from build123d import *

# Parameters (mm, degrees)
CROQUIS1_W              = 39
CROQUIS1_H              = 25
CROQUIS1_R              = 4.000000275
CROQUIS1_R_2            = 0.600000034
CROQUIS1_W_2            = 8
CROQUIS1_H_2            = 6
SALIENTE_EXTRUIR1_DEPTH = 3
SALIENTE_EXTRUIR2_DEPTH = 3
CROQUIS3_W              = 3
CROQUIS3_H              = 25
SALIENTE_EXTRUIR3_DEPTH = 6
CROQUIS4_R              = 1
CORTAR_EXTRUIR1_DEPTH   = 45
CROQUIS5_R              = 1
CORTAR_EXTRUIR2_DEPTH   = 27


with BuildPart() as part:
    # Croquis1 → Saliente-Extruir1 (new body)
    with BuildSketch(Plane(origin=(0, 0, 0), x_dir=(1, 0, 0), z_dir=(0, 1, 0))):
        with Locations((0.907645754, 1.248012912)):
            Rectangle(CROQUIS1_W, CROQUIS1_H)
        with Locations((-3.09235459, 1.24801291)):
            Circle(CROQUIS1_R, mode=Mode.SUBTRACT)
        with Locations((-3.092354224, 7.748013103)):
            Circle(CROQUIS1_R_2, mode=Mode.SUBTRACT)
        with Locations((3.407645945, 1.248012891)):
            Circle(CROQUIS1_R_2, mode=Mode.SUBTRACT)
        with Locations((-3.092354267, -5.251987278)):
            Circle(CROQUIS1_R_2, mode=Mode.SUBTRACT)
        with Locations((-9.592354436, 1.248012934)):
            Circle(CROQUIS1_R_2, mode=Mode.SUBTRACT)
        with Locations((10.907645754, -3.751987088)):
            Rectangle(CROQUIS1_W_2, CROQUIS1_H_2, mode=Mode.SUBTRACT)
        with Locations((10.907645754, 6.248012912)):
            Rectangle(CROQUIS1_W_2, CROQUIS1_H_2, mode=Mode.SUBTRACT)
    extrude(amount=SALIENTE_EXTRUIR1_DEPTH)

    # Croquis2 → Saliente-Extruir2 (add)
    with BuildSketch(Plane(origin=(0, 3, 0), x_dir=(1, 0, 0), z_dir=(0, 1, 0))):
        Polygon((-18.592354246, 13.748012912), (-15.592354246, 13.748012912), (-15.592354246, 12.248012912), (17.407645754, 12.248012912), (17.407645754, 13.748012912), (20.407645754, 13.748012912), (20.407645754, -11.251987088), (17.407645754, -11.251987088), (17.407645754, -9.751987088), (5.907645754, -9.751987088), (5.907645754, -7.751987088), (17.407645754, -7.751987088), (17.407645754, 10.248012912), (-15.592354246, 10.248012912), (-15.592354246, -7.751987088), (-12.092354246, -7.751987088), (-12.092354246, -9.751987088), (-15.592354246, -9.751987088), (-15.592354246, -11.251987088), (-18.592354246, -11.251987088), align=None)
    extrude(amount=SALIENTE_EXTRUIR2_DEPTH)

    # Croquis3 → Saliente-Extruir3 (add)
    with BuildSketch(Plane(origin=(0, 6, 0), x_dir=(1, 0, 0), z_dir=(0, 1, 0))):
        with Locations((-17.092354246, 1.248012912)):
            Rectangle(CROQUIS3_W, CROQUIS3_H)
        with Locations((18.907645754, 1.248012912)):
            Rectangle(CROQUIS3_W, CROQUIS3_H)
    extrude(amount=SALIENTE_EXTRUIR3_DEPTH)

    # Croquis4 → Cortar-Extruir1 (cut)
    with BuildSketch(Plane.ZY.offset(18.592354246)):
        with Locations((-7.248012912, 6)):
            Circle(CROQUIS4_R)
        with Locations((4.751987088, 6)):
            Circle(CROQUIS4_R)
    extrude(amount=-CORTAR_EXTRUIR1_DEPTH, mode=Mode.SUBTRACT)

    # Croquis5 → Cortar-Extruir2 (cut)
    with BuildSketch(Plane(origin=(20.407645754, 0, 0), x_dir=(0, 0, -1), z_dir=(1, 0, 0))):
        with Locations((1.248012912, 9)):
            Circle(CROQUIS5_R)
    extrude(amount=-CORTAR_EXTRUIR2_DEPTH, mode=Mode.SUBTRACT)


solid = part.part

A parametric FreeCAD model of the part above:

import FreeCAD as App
import Part
import Sketcher


def add_polygon(sketch, points):
    """Adds a closed chain of lines whose ends are joined by coincident constraints."""
    first, n = sketch.GeometryCount, len(points)
    for a, b in zip(points, points[1:] + points[:1]):
        sketch.addGeometry(Part.LineSegment(App.Vector(*a, 0), App.Vector(*b, 0)), False)
    for i in range(n):
        sketch.addConstraint(Sketcher.Constraint("Coincident", first + i, 2, first + (i + 1) % n, 1))

doc = App.newDocument("Part")
body = doc.addObject("PartDesign::Body", "Body")

# Sketch on XZ plane
sketch1 = body.newObject("Sketcher::SketchObject", "Sketch")
sketch1.AttachmentSupport = (doc.getObject("XZ_Plane"), [""])
sketch1.MapMode = "FlatFace"
add_polygon(sketch1, [(-18.6, -13.7), (-18.6, 11.3), (20.4, 11.3), (20.4, -13.7)])  # lines 0-3
sketch1.addGeometry(Part.Circle(App.Vector(-3.1, 5.3, 0), App.Vector(0, 0, 1), 0.6), False)  # 4
sketch1.addGeometry(Part.Circle(App.Vector(-3.1, -1.2, 0), App.Vector(0, 0, 1), 4), False)  # 5
add_polygon(sketch1, [(14.9, 6.8), (6.9, 6.8), (6.9, 0.8), (14.9, 0.8)])  # lines 6-9
sketch1.addGeometry(Part.Circle(App.Vector(3.4, -1.2, 0), App.Vector(0, 0, 1), 0.6), False)  # 10
sketch1.addGeometry(Part.Circle(App.Vector(-9.6, -1.2, 0), App.Vector(0, 0, 1), 0.6), False)  # 11
sketch1.addGeometry(Part.Circle(App.Vector(-3.1, -7.7, 0), App.Vector(0, 0, 1), 0.6), False)  # 12
add_polygon(sketch1, [(14.9, -3.2), (6.9, -3.2), (6.9, -9.2), (14.9, -9.2)])  # lines 13-16
sketch1.addConstraint(Sketcher.Constraint("Vertical", 0))
sketch1.addConstraint(Sketcher.Constraint("Horizontal", 1))
sketch1.addConstraint(Sketcher.Constraint("Vertical", 2))
sketch1.addConstraint(Sketcher.Constraint("Horizontal", 3))
sketch1.addConstraint(Sketcher.Constraint("Horizontal", 6))
sketch1.addConstraint(Sketcher.Constraint("Vertical", 7))
sketch1.addConstraint(Sketcher.Constraint("Horizontal", 8))
sketch1.addConstraint(Sketcher.Constraint("Vertical", 9))
sketch1.addConstraint(Sketcher.Constraint("Horizontal", 13))
sketch1.addConstraint(Sketcher.Constraint("Vertical", 14))
sketch1.addConstraint(Sketcher.Constraint("Horizontal", 15))
sketch1.addConstraint(Sketcher.Constraint("Vertical", 16))
sketch1.addConstraint(Sketcher.Constraint("Equal", 4, 10))
sketch1.addConstraint(Sketcher.Constraint("Equal", 10, 11))
sketch1.addConstraint(Sketcher.Constraint("Equal", 11, 12))
sketch1.addConstraint(Sketcher.Constraint("Horizontal", 5, 3, 10, 3))
sketch1.addConstraint(Sketcher.Constraint("Horizontal", 10, 3, 11, 3))
sketch1.addConstraint(Sketcher.Constraint("Vertical", 4, 3, 5, 3))
sketch1.addConstraint(Sketcher.Constraint("Vertical", 5, 3, 12, 3))
sketch1.addConstraint(Sketcher.Constraint("Vertical", 7, 2, 13, 2))
sketch1.addConstraint(Sketcher.Constraint("Vertical", 9, 2, 15, 2))
sketch1.addConstraint(Sketcher.Constraint("Equal", 9, 14))
sketch1.addConstraint(Sketcher.Constraint("Diameter", 5, 8.000001))
sketch1.addConstraint(Sketcher.Constraint("Diameter", 4, 1.2))
sketch1.addConstraint(Sketcher.Constraint("DistanceX", 1, 1, 1, 2, 39.0))
sketch1.addConstraint(Sketcher.Constraint("DistanceX", 6, 2, 6, 1, 8.0))
sketch1.addConstraint(Sketcher.Constraint("DistanceY", 0, 1, 0, 2, 25.0))
sketch1.addConstraint(Sketcher.Constraint("DistanceY", 7, 2, 7, 1, 6.0))
sketch1.addConstraint(Sketcher.Constraint("DistanceX", 11, 3, 10, 3, 13.0))
sketch1.addConstraint(Sketcher.Constraint("DistanceY", 12, 3, 4, 3, 13.0))
sketch1.addConstraint(Sketcher.Constraint("DistanceX", 0, 2, 11, 3, 9.0))
sketch1.addConstraint(Sketcher.Constraint("DistanceY", 4, 3, 0, 2, 6.0))
sketch1.addConstraint(Sketcher.Constraint("DistanceY", 10, 3, 6, 2, 8.0))
sketch1.addConstraint(Sketcher.Constraint("DistanceX", 4, 3, 6, 2, 10.0))
sketch1.addConstraint(Sketcher.Constraint("DistanceY", 13, 2, 7, 2, 4.0))
sketch1.addConstraint(Sketcher.Constraint("DistanceY", 5, 3, 4, 3, 6.5))
sketch1.addConstraint(Sketcher.Constraint("DistanceX", 5, 3, 10, 3, 6.500001))
sketch1.addConstraint(Sketcher.Constraint("DistanceX", 4, 3, -1, 1, 3.092354))
sketch1.addConstraint(Sketcher.Constraint("DistanceY", -1, 1, 4, 3, 5.251987))
pad1 = body.newObject("PartDesign::Pad", "Pad")
pad1.Profile = sketch1
pad1.Length = 3
pad1.Reversed = True

# Sketch on XZ plane
sketch2 = body.newObject("Sketcher::SketchObject", "Sketch001")
sketch2.AttachmentSupport = (doc.getObject("XZ_Plane"), [""])
sketch2.MapMode = "FlatFace"
sketch2.AttachmentOffset = App.Placement(App.Vector(0, 0, -3), App.Rotation())
add_polygon(sketch2, [(-15.6, -13.7), (-18.6, -13.7), (-18.6, 11.3), (-15.6, 11.3), (-15.6, 9.8), (-12.1, 9.8), (-12.1, 7.8), (-15.6, 7.8), (-15.6, -10.2), (17.4, -10.2), (17.4, 7.8), (5.9, 7.8), (5.9, 9.8), (17.4, 9.8), (17.4, 11.3), (20.4, 11.3), (20.4, -13.7), (17.4, -13.7), (17.4, -12.2), (-15.6, -12.2)])  # lines 0-19
sketch2.addConstraint(Sketcher.Constraint("Horizontal", 0))
sketch2.addConstraint(Sketcher.Constraint("Vertical", 1))
sketch2.addConstraint(Sketcher.Constraint("Horizontal", 2))
sketch2.addConstraint(Sketcher.Constraint("Vertical", 3))
sketch2.addConstraint(Sketcher.Constraint("Horizontal", 4))
sketch2.addConstraint(Sketcher.Constraint("Vertical", 5))
sketch2.addConstraint(Sketcher.Constraint("Horizontal", 6))
sketch2.addConstraint(Sketcher.Constraint("Vertical", 7))
sketch2.addConstraint(Sketcher.Constraint("Horizontal", 8))
sketch2.addConstraint(Sketcher.Constraint("Vertical", 9))
sketch2.addConstraint(Sketcher.Constraint("Horizontal", 10))
sketch2.addConstraint(Sketcher.Constraint("Vertical", 11))
sketch2.addConstraint(Sketcher.Constraint("Horizontal", 12))
sketch2.addConstraint(Sketcher.Constraint("Vertical", 13))
sketch2.addConstraint(Sketcher.Constraint("Horizontal", 14))
sketch2.addConstraint(Sketcher.Constraint("Vertical", 15))
sketch2.addConstraint(Sketcher.Constraint("Horizontal", 16))
sketch2.addConstraint(Sketcher.Constraint("Vertical", 17))
sketch2.addConstraint(Sketcher.Constraint("Horizontal", 18))
sketch2.addConstraint(Sketcher.Constraint("Vertical", 19))
sketch2.addConstraint(Sketcher.Constraint("Horizontal", 6, 2, 9, 2))
sketch2.addConstraint(Sketcher.Constraint("Horizontal", 4, 2, 11, 2))
sketch2.addConstraint(Sketcher.Constraint("Horizontal", 2, 2, 13, 2))
sketch2.addConstraint(Sketcher.Constraint("Horizontal", 0, 2, 15, 2))
sketch2.addConstraint(Sketcher.Constraint("Vertical", 3, 2, 6, 2))
sketch2.addConstraint(Sketcher.Constraint("Vertical", 9, 2, 12, 2))
sketch2.addConstraint(Sketcher.Constraint("Vertical", 13, 2, 16, 2))
sketch2.addConstraint(Sketcher.Constraint("Vertical", 7, 2, 18, 2))
sketch2.addConstraint(Sketcher.Constraint("Equal", 2, 14))
sketch2.addConstraint(Sketcher.Constraint("Equal", 13, 17))
sketch2.addConstraint(Sketcher.Constraint("DistanceX", 0, 2, 0, 1, 3.0))
sketch2.addConstraint(Sketcher.Constraint("DistanceX", 8, 1, 8, 2, 33.0))
sketch2.addConstraint(Sketcher.Constraint("DistanceY", 1, 1, 1, 2, 25.0))
sketch2.addConstraint(Sketcher.Constraint("DistanceY", 5, 2, 5, 1, 2.0))
sketch2.addConstraint(Sketcher.Constraint("DistanceY", 7, 2, 7, 1, 18.0))
sketch2.addConstraint(Sketcher.Constraint("DistanceX", 4, 1, 4, 2, 3.5))
sketch2.addConstraint(Sketcher.Constraint("DistanceX", 10, 2, 10, 1, 11.5))
sketch2.addConstraint(Sketcher.Constraint("DistanceY", 3, 2, 3, 1, 1.5))
sketch2.addConstraint(Sketcher.Constraint("DistanceX", 0, 2, -1, 1, 18.592354))
sketch2.addConstraint(Sketcher.Constraint("DistanceY", 0, 2, -1, 1, 13.748013))
pad2 = body.newObject("PartDesign::Pad", "Pad001")
pad2.Profile = sketch2
pad2.Length = 3
pad2.Reversed = True

# Sketch on XZ plane
sketch3 = body.newObject("Sketcher::SketchObject", "Sketch002")
sketch3.AttachmentSupport = (doc.getObject("XZ_Plane"), [""])
sketch3.MapMode = "FlatFace"
sketch3.AttachmentOffset = App.Placement(App.Vector(0, 0, -6), App.Rotation())
add_polygon(sketch3, [(-18.6, -13.7), (-18.6, 11.3), (-15.6, 11.3), (-15.6, -13.7)])  # lines 0-3
add_polygon(sketch3, [(17.4, -13.7), (17.4, 11.3), (20.4, 11.3), (20.4, -13.7)])  # lines 4-7
sketch3.addConstraint(Sketcher.Constraint("Vertical", 0))
sketch3.addConstraint(Sketcher.Constraint("Horizontal", 1))
sketch3.addConstraint(Sketcher.Constraint("Vertical", 2))
sketch3.addConstraint(Sketcher.Constraint("Horizontal", 3))
sketch3.addConstraint(Sketcher.Constraint("Vertical", 4))
sketch3.addConstraint(Sketcher.Constraint("Horizontal", 5))
sketch3.addConstraint(Sketcher.Constraint("Vertical", 6))
sketch3.addConstraint(Sketcher.Constraint("Horizontal", 7))
sketch3.addConstraint(Sketcher.Constraint("Horizontal", 1, 2, 4, 2))
sketch3.addConstraint(Sketcher.Constraint("Horizontal", 3, 2, 6, 2))
sketch3.addConstraint(Sketcher.Constraint("Equal", 3, 5))
sketch3.addConstraint(Sketcher.Constraint("DistanceX", 1, 1, 1, 2, 3.0))
sketch3.addConstraint(Sketcher.Constraint("DistanceY", 0, 1, 0, 2, 25.0))
sketch3.addConstraint(Sketcher.Constraint("DistanceX", 1, 2, 4, 2, 33.0))
sketch3.addConstraint(Sketcher.Constraint("DistanceX", 0, 2, -1, 1, 18.592354))
sketch3.addConstraint(Sketcher.Constraint("DistanceY", -1, 1, 0, 2, 11.251987))
pad3 = body.newObject("PartDesign::Pad", "Pad002")
pad3.Profile = sketch3
pad3.Length = 6
pad3.Reversed = True

# Sketch on YZ plane
sketch4 = body.newObject("Sketcher::SketchObject", "Sketch003")
sketch4.AttachmentSupport = (doc.getObject("YZ_Plane"), [""])
sketch4.MapMode = "FlatFace"
sketch4.AttachmentOffset = App.Placement(App.Vector(0, 0, -18.592354), App.Rotation())
sketch4.addGeometry(Part.Circle(App.Vector(6, -7.2, 0), App.Vector(0, 0, 1), 1), False)
sketch4.addGeometry(Part.Circle(App.Vector(6, 4.8, 0), App.Vector(0, 0, 1), 1), False)
sketch4.addConstraint(Sketcher.Constraint("Equal", 0, 1))
sketch4.addConstraint(Sketcher.Constraint("Vertical", 0, 3, 1, 3))
sketch4.addConstraint(Sketcher.Constraint("Diameter", 0, 2.0))
sketch4.addConstraint(Sketcher.Constraint("DistanceX", -1, 1, 0, 3, 6.0))
sketch4.addConstraint(Sketcher.Constraint("DistanceY", 0, 3, 1, 3, 12.0))
sketch4.addConstraint(Sketcher.Constraint("DistanceY", 0, 3, -1, 1, 7.248013))
pocket1 = body.newObject("PartDesign::Pocket", "Pocket")
pocket1.Profile = sketch4
pocket1.Length = 45
pocket1.Reversed = True

# Sketch on YZ plane
sketch5 = body.newObject("Sketcher::SketchObject", "Sketch004")
sketch5.AttachmentSupport = (doc.getObject("YZ_Plane"), [""])
sketch5.MapMode = "FlatFace"
sketch5.AttachmentOffset = App.Placement(App.Vector(0, 0, 20.407646), App.Rotation())
sketch5.addGeometry(Part.Circle(App.Vector(9, -1.2, 0), App.Vector(0, 0, 1), 1), False)
sketch5.addConstraint(Sketcher.Constraint("Diameter", 0, 2.0))
sketch5.addConstraint(Sketcher.Constraint("DistanceX", -1, 1, 0, 3, 9.0))
sketch5.addConstraint(Sketcher.Constraint("DistanceY", 0, 3, -1, 1, 1.248013))
pocket2 = body.newObject("PartDesign::Pocket", "Pocket001")
pocket2.Profile = sketch5
pocket2.Length = 27

doc.recompute()
